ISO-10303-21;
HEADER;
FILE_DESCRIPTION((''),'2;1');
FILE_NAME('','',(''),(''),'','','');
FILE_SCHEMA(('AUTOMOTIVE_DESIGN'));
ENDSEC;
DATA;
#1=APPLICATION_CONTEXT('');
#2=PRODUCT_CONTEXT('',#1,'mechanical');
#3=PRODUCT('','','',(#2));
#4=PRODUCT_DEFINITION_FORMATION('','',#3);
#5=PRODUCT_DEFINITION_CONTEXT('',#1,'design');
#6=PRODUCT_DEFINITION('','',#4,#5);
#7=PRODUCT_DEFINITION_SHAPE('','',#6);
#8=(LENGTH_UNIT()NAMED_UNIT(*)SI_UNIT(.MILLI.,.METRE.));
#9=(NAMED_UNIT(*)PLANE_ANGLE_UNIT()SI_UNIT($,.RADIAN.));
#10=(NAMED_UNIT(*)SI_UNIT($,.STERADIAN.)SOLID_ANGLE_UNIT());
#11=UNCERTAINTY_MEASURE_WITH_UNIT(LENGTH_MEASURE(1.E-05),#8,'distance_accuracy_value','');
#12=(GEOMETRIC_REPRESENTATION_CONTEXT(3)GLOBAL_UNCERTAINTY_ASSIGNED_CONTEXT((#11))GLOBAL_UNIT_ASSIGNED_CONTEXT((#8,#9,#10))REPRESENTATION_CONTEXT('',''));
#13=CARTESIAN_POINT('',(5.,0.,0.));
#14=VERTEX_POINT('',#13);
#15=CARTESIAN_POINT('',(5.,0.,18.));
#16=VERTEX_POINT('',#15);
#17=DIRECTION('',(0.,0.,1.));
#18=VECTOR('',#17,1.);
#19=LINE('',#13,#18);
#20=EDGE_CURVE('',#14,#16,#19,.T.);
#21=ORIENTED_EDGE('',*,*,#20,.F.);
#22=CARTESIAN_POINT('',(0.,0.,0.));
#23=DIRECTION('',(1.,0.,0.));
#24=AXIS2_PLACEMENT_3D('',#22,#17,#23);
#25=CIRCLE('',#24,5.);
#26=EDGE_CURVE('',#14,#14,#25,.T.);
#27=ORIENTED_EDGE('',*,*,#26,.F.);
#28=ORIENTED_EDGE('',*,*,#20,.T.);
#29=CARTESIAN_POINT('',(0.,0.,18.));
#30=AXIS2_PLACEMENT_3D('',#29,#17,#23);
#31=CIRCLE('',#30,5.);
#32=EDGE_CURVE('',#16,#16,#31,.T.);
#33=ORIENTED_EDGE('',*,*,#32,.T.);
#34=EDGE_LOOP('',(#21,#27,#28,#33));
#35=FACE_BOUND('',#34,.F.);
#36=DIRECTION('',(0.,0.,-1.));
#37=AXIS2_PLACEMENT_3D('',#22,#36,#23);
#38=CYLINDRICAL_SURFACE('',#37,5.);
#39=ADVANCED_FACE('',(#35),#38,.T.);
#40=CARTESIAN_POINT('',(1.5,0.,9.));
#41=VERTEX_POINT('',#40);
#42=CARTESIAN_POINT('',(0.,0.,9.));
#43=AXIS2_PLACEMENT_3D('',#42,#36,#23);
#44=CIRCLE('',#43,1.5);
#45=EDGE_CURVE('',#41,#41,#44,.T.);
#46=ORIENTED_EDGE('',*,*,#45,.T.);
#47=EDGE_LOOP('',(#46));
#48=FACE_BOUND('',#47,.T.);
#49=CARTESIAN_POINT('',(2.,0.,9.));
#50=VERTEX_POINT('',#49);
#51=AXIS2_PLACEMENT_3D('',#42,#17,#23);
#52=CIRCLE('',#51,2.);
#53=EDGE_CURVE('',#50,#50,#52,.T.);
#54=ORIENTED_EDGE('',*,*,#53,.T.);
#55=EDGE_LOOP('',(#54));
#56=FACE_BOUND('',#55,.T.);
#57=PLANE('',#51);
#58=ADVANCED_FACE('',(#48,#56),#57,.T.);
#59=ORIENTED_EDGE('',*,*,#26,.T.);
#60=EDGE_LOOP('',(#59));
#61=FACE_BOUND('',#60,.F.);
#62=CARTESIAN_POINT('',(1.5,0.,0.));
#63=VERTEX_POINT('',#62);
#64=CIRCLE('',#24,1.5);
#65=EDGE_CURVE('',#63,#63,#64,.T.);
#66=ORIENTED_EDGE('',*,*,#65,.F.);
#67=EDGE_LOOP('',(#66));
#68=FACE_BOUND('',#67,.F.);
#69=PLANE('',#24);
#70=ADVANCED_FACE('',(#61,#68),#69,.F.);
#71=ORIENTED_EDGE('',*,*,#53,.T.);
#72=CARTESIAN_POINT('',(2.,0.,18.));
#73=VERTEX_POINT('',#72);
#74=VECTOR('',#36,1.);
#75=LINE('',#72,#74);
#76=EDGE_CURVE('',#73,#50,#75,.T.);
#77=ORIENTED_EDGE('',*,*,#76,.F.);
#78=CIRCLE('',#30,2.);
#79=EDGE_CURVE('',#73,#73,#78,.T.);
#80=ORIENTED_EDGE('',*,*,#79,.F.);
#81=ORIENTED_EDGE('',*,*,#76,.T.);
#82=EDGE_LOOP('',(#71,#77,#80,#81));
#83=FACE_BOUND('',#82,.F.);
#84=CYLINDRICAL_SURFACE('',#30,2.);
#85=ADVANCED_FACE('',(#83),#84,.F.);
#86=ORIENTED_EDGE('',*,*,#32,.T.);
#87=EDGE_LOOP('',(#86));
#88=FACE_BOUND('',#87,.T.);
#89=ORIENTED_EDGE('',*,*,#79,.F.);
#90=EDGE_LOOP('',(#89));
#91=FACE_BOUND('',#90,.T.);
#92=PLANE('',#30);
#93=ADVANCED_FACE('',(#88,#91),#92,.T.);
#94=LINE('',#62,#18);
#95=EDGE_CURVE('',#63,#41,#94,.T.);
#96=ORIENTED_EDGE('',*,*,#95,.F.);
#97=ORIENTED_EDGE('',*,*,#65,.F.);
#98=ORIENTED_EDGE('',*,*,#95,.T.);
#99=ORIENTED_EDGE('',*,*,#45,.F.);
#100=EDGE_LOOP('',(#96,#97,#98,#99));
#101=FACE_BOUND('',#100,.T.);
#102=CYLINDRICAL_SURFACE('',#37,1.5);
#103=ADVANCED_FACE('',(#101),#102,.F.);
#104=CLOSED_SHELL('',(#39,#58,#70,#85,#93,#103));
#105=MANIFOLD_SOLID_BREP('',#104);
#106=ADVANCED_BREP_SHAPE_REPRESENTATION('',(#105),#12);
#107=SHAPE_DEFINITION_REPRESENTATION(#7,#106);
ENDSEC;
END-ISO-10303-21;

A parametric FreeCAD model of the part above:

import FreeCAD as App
import Part
import Sketcher

V = App.Vector
Q = App.Units.Quantity

doc = App.newDocument("Part")
body = doc.addObject("PartDesign::Body", "Body")

# Sketch on XY plane
sketch1 = doc.addObject("Sketcher::SketchObject", "Sketch")
body.addObject(sketch1)
sketch1.AttachmentSupport = (doc.XY_Plane, [""])
sketch1.MapMode = "FlatFace"
sketch1.addGeometry([
    Part.Circle(V(0, 0, 0), V(0, 0, 1), 5),
    Part.Circle(V(0, 0, 0), V(0, 0, 1), 1.5),
], False)
sketch1.addConstraint([
    Sketcher.Constraint("Coincident", 0, 3, -1, 1),
    Sketcher.Constraint("Coincident", 1, 3, -1, 1),
    Sketcher.Constraint("Diameter", 0, Q("10 mm")),
    Sketcher.Constraint("Diameter", 1, Q("3 mm")),
])
pad1 = doc.addObject("PartDesign::Pad", "Pad")
body.addObject(pad1)
pad1.Profile = sketch1
pad1.Length = 18

# Sketch on XY plane
sketch2 = doc.addObject("Sketcher::SketchObject", "Sketch001")
body.addObject(sketch2)
sketch2.AttachmentSupport = (doc.XY_Plane, [""])
sketch2.MapMode = "FlatFace"
sketch2.AttachmentOffset = App.Placement(V(0, 0, 18), App.Rotation())
sketch2.addGeometry(Part.Circle(V(0, 0, 0), V(0, 0, 1), 2), False)
sketch2.addConstraint([
    Sketcher.Constraint("Coincident", 0, 3, -1, 1),
    Sketcher.Constraint("Diameter", 0, Q("4 mm")),
])
pocket1 = doc.addObject("PartDesign::Pocket", "Pocket")
body.addObject(pocket1)
pocket1.Profile = sketch2
pocket1.Length = 9

doc.recompute()
